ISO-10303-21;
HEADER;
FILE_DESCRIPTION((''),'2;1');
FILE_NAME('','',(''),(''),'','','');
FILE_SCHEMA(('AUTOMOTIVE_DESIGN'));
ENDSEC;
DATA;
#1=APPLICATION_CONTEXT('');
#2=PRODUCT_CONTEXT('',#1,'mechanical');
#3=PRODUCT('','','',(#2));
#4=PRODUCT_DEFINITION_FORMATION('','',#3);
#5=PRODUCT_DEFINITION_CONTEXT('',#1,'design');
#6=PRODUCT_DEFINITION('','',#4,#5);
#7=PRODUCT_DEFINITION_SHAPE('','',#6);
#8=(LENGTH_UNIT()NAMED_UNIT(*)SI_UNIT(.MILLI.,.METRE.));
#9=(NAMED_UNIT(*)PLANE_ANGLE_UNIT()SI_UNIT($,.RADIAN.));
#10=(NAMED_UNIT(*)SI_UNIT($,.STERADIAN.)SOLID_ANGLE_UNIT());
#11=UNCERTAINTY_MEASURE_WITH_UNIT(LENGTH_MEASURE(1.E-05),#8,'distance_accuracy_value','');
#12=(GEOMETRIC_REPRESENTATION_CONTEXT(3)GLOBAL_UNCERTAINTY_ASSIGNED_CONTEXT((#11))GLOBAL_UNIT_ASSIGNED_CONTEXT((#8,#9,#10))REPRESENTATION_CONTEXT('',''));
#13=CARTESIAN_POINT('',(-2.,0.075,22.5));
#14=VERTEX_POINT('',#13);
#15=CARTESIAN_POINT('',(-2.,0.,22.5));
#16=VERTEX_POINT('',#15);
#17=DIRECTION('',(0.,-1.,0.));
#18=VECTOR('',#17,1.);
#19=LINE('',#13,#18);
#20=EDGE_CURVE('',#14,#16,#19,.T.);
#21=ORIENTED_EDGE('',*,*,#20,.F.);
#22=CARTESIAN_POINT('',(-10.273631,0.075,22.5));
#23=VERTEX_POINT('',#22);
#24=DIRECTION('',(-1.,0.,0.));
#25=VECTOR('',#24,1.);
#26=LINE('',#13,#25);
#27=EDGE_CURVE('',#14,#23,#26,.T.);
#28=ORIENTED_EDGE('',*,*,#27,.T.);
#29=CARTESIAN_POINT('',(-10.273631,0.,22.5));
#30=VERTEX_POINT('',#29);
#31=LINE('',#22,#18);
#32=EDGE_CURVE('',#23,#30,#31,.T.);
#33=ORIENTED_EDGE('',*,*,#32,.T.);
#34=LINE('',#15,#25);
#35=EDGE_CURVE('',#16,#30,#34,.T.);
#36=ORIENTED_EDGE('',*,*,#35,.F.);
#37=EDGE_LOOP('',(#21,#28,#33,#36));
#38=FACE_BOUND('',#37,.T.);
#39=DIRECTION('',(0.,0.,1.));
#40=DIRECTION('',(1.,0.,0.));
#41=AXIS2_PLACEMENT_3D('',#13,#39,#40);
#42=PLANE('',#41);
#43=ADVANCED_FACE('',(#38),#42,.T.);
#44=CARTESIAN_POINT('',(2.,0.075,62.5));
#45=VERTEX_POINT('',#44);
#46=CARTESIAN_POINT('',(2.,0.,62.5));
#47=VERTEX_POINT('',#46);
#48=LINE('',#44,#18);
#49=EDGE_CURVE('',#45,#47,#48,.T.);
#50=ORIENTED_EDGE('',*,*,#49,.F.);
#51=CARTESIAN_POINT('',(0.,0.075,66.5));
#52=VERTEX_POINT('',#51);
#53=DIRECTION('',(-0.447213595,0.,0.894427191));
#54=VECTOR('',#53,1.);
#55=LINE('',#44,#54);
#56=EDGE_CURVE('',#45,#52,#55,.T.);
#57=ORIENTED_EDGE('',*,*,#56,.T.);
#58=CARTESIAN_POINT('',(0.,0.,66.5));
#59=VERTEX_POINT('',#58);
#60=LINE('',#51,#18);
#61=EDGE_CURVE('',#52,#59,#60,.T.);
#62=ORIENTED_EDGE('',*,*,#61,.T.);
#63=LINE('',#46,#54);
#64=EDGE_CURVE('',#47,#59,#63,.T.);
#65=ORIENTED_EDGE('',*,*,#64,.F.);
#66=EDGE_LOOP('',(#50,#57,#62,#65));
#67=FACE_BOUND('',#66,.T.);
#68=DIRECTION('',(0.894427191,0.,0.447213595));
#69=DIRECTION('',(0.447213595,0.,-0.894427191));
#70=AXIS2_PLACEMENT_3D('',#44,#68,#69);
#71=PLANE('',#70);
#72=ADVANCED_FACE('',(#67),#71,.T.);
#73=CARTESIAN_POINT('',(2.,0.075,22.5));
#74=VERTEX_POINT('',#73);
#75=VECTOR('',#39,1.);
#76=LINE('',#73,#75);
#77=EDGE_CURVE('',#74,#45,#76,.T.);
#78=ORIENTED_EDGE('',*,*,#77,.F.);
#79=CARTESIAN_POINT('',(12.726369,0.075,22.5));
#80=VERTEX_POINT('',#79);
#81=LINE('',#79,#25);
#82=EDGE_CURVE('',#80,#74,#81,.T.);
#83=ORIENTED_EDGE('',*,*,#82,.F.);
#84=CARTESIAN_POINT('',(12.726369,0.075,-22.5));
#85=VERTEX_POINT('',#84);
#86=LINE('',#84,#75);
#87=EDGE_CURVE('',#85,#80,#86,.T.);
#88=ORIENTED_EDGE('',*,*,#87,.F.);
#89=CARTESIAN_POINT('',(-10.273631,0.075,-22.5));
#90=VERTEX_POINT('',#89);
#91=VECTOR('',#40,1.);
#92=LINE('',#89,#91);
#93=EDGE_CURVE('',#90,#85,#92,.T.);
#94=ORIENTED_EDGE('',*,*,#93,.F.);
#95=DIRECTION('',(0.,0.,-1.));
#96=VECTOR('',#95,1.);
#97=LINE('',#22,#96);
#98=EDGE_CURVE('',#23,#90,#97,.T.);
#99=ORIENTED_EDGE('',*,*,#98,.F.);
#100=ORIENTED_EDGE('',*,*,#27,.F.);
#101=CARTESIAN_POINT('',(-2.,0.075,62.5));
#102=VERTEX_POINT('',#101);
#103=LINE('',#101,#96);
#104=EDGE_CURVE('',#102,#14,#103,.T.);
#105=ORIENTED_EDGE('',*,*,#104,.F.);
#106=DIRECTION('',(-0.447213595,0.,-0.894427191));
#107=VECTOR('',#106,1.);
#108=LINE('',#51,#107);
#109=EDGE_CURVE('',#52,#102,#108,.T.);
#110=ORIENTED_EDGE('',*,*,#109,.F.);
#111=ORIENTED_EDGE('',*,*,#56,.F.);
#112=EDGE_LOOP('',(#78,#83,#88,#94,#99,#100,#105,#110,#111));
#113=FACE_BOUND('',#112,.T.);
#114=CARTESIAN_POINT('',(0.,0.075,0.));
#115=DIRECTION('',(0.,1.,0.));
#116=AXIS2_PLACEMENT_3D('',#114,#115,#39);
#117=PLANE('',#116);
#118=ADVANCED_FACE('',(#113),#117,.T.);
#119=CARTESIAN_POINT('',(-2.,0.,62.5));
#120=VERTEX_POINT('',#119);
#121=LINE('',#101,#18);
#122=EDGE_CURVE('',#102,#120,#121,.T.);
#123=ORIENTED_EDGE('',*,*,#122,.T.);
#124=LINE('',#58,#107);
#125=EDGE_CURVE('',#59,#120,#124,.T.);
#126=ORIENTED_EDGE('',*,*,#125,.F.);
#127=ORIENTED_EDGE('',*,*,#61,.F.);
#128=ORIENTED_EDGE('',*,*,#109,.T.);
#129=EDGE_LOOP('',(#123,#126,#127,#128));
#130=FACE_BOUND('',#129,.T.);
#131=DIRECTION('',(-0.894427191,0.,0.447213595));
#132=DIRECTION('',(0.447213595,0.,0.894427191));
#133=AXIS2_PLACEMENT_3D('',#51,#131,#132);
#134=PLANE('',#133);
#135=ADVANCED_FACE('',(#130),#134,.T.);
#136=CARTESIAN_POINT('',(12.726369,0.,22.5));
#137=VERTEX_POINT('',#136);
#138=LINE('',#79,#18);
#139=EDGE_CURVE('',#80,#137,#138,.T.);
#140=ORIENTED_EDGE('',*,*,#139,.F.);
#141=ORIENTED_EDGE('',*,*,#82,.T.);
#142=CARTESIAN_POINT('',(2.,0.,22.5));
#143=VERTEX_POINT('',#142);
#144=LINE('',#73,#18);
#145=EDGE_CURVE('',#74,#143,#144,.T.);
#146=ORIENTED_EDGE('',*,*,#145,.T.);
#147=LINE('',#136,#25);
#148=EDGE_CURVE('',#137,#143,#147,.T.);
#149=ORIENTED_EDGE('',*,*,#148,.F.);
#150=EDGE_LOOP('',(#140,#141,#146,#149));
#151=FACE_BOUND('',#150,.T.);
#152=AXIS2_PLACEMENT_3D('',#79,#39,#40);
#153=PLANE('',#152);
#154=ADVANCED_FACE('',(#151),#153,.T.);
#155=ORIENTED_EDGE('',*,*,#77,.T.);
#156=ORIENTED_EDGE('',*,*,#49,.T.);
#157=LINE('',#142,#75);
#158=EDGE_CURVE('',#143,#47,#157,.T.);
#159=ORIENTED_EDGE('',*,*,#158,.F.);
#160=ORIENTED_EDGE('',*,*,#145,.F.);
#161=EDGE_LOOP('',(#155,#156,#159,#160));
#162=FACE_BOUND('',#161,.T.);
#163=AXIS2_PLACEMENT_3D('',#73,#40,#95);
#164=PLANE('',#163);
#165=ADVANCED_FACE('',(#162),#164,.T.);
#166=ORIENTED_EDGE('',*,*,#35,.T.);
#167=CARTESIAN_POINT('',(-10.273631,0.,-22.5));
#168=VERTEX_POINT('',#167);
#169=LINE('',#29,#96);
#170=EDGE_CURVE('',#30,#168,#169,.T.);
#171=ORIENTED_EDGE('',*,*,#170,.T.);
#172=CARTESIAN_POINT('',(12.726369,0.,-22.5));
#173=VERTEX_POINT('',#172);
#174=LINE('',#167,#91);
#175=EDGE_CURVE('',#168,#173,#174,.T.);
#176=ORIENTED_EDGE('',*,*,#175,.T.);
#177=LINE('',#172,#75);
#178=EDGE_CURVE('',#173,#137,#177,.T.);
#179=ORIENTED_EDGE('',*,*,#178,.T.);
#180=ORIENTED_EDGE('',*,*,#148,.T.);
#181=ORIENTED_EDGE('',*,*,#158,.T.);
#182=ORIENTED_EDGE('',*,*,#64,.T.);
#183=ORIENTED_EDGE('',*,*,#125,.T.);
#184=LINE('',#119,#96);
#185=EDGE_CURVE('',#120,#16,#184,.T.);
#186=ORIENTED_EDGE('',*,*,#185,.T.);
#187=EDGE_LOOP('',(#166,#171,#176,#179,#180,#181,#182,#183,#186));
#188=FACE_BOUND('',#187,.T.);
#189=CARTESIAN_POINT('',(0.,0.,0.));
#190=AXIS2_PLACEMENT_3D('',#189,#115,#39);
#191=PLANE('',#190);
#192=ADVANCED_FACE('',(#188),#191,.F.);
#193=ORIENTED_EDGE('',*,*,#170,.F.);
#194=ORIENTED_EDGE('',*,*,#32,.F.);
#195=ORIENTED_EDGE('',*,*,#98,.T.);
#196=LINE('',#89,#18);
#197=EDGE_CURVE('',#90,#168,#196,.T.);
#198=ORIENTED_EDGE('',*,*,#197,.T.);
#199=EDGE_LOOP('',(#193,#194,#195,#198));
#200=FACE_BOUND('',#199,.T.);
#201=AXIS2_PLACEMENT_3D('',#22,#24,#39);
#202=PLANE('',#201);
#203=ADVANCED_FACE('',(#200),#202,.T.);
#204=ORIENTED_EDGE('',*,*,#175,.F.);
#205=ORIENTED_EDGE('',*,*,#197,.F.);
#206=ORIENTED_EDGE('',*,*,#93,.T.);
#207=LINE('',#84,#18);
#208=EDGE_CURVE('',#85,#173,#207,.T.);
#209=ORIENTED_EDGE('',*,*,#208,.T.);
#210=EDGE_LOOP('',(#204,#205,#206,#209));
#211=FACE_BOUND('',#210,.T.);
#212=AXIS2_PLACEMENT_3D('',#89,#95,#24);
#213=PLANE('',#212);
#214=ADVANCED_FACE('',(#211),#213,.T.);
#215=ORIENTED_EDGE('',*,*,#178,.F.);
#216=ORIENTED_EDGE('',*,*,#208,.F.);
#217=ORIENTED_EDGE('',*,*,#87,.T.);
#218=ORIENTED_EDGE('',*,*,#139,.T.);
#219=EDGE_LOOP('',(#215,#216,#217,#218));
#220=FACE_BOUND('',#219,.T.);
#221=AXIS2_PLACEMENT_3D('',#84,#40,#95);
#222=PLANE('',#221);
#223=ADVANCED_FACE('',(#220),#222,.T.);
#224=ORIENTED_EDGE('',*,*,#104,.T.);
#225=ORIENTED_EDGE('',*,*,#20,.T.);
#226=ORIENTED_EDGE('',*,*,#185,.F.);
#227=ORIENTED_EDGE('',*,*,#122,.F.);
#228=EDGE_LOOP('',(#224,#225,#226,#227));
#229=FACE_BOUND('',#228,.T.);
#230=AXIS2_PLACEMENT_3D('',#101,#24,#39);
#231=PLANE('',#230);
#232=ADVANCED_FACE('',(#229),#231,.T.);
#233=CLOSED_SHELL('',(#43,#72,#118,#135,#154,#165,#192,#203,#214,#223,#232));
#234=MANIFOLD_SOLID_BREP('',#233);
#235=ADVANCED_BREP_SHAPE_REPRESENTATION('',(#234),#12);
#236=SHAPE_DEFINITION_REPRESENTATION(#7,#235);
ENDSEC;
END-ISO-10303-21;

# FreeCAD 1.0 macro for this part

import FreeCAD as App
import Part
import Sketcher
from FreeCAD import Vector


def add_polygon(sketch, points):
    """Adds a closed chain of lines whose ends are joined by coincident constraints."""
    first, n = sketch.GeometryCount, len(points)
    for a, b in zip(points, points[1:] + points[:1]):
        sketch.addGeometry(Part.LineSegment(App.Vector(*a, 0), App.Vector(*b, 0)), False)
    for i in range(n):
        sketch.addConstraint(Sketcher.Constraint("Coincident", first + i, 2, first + (i + 1) % n, 1))

doc = App.newDocument("Part")
body = doc.addObject("PartDesign::Body", "Body")

# Sketch on XZ plane
sketch1 = body.newObject("Sketcher::SketchObject", "Sketch")
sketch1.AttachmentSupport = (doc.getObject("XZ_Plane"), [""])
sketch1.MapMode = "FlatFace"
add_polygon(sketch1, [(12.7, -22.5), (-10.3, -22.5), (-10.3, 22.5), (-2, 22.5), (-2, 62.5), (0, 66.5), (2, 62.5), (2, 22.5), (12.7, 22.5)])  # lines 0-8
sketch1.addConstraint(Sketcher.Constraint("Horizontal", 0))
sketch1.addConstraint(Sketcher.Constraint("Vertical", 1))
sketch1.addConstraint(Sketcher.Constraint("Horizontal", 2))
sketch1.addConstraint(Sketcher.Constraint("Vertical", 3))
sketch1.addConstraint(Sketcher.Constraint("Vertical", 6))
sketch1.addConstraint(Sketcher.Constraint("Horizontal", 7))
sketch1.addConstraint(Sketcher.Constraint("Vertical", 8))
sketch1.addConstraint(Sketcher.Constraint("Symmetric", 3, 2, 5, 2, -2))
sketch1.addConstraint(Sketcher.Constraint("PointOnObject", 4, 2, -2))
sketch1.addConstraint(Sketcher.Constraint("Horizontal", 2, 2, 6, 2))
sketch1.addConstraint(Sketcher.Constraint("DistanceX", 0, 2, 0, 1, 23.0))
sketch1.addConstraint(Sketcher.Constraint("DistanceY", 1, 1, 1, 2, 45.0))
sketch1.addConstraint(Sketcher.Constraint("DistanceY", 3, 1, 3, 2, 40.0))
sketch1.addConstraint(Sketcher.Constraint("DistanceX", 2, 2, -1, 1, 2.0))
sketch1.addConstraint(Sketcher.Constraint("DistanceY", 3, 2, 4, 2, 4.0))
sketch1.addConstraint(Sketcher.Constraint("DistanceY", 0, 2, -1, 1, 22.5))
sketch1.addConstraint(Sketcher.Constraint("DistanceX", 2, 1, 2, 2, 8.273631))
pad1 = body.newObject("PartDesign::Pad", "Pad")
pad1.Profile = sketch1
pad1.Length = 0.075
pad1.Reversed = True

doc.recompute()
